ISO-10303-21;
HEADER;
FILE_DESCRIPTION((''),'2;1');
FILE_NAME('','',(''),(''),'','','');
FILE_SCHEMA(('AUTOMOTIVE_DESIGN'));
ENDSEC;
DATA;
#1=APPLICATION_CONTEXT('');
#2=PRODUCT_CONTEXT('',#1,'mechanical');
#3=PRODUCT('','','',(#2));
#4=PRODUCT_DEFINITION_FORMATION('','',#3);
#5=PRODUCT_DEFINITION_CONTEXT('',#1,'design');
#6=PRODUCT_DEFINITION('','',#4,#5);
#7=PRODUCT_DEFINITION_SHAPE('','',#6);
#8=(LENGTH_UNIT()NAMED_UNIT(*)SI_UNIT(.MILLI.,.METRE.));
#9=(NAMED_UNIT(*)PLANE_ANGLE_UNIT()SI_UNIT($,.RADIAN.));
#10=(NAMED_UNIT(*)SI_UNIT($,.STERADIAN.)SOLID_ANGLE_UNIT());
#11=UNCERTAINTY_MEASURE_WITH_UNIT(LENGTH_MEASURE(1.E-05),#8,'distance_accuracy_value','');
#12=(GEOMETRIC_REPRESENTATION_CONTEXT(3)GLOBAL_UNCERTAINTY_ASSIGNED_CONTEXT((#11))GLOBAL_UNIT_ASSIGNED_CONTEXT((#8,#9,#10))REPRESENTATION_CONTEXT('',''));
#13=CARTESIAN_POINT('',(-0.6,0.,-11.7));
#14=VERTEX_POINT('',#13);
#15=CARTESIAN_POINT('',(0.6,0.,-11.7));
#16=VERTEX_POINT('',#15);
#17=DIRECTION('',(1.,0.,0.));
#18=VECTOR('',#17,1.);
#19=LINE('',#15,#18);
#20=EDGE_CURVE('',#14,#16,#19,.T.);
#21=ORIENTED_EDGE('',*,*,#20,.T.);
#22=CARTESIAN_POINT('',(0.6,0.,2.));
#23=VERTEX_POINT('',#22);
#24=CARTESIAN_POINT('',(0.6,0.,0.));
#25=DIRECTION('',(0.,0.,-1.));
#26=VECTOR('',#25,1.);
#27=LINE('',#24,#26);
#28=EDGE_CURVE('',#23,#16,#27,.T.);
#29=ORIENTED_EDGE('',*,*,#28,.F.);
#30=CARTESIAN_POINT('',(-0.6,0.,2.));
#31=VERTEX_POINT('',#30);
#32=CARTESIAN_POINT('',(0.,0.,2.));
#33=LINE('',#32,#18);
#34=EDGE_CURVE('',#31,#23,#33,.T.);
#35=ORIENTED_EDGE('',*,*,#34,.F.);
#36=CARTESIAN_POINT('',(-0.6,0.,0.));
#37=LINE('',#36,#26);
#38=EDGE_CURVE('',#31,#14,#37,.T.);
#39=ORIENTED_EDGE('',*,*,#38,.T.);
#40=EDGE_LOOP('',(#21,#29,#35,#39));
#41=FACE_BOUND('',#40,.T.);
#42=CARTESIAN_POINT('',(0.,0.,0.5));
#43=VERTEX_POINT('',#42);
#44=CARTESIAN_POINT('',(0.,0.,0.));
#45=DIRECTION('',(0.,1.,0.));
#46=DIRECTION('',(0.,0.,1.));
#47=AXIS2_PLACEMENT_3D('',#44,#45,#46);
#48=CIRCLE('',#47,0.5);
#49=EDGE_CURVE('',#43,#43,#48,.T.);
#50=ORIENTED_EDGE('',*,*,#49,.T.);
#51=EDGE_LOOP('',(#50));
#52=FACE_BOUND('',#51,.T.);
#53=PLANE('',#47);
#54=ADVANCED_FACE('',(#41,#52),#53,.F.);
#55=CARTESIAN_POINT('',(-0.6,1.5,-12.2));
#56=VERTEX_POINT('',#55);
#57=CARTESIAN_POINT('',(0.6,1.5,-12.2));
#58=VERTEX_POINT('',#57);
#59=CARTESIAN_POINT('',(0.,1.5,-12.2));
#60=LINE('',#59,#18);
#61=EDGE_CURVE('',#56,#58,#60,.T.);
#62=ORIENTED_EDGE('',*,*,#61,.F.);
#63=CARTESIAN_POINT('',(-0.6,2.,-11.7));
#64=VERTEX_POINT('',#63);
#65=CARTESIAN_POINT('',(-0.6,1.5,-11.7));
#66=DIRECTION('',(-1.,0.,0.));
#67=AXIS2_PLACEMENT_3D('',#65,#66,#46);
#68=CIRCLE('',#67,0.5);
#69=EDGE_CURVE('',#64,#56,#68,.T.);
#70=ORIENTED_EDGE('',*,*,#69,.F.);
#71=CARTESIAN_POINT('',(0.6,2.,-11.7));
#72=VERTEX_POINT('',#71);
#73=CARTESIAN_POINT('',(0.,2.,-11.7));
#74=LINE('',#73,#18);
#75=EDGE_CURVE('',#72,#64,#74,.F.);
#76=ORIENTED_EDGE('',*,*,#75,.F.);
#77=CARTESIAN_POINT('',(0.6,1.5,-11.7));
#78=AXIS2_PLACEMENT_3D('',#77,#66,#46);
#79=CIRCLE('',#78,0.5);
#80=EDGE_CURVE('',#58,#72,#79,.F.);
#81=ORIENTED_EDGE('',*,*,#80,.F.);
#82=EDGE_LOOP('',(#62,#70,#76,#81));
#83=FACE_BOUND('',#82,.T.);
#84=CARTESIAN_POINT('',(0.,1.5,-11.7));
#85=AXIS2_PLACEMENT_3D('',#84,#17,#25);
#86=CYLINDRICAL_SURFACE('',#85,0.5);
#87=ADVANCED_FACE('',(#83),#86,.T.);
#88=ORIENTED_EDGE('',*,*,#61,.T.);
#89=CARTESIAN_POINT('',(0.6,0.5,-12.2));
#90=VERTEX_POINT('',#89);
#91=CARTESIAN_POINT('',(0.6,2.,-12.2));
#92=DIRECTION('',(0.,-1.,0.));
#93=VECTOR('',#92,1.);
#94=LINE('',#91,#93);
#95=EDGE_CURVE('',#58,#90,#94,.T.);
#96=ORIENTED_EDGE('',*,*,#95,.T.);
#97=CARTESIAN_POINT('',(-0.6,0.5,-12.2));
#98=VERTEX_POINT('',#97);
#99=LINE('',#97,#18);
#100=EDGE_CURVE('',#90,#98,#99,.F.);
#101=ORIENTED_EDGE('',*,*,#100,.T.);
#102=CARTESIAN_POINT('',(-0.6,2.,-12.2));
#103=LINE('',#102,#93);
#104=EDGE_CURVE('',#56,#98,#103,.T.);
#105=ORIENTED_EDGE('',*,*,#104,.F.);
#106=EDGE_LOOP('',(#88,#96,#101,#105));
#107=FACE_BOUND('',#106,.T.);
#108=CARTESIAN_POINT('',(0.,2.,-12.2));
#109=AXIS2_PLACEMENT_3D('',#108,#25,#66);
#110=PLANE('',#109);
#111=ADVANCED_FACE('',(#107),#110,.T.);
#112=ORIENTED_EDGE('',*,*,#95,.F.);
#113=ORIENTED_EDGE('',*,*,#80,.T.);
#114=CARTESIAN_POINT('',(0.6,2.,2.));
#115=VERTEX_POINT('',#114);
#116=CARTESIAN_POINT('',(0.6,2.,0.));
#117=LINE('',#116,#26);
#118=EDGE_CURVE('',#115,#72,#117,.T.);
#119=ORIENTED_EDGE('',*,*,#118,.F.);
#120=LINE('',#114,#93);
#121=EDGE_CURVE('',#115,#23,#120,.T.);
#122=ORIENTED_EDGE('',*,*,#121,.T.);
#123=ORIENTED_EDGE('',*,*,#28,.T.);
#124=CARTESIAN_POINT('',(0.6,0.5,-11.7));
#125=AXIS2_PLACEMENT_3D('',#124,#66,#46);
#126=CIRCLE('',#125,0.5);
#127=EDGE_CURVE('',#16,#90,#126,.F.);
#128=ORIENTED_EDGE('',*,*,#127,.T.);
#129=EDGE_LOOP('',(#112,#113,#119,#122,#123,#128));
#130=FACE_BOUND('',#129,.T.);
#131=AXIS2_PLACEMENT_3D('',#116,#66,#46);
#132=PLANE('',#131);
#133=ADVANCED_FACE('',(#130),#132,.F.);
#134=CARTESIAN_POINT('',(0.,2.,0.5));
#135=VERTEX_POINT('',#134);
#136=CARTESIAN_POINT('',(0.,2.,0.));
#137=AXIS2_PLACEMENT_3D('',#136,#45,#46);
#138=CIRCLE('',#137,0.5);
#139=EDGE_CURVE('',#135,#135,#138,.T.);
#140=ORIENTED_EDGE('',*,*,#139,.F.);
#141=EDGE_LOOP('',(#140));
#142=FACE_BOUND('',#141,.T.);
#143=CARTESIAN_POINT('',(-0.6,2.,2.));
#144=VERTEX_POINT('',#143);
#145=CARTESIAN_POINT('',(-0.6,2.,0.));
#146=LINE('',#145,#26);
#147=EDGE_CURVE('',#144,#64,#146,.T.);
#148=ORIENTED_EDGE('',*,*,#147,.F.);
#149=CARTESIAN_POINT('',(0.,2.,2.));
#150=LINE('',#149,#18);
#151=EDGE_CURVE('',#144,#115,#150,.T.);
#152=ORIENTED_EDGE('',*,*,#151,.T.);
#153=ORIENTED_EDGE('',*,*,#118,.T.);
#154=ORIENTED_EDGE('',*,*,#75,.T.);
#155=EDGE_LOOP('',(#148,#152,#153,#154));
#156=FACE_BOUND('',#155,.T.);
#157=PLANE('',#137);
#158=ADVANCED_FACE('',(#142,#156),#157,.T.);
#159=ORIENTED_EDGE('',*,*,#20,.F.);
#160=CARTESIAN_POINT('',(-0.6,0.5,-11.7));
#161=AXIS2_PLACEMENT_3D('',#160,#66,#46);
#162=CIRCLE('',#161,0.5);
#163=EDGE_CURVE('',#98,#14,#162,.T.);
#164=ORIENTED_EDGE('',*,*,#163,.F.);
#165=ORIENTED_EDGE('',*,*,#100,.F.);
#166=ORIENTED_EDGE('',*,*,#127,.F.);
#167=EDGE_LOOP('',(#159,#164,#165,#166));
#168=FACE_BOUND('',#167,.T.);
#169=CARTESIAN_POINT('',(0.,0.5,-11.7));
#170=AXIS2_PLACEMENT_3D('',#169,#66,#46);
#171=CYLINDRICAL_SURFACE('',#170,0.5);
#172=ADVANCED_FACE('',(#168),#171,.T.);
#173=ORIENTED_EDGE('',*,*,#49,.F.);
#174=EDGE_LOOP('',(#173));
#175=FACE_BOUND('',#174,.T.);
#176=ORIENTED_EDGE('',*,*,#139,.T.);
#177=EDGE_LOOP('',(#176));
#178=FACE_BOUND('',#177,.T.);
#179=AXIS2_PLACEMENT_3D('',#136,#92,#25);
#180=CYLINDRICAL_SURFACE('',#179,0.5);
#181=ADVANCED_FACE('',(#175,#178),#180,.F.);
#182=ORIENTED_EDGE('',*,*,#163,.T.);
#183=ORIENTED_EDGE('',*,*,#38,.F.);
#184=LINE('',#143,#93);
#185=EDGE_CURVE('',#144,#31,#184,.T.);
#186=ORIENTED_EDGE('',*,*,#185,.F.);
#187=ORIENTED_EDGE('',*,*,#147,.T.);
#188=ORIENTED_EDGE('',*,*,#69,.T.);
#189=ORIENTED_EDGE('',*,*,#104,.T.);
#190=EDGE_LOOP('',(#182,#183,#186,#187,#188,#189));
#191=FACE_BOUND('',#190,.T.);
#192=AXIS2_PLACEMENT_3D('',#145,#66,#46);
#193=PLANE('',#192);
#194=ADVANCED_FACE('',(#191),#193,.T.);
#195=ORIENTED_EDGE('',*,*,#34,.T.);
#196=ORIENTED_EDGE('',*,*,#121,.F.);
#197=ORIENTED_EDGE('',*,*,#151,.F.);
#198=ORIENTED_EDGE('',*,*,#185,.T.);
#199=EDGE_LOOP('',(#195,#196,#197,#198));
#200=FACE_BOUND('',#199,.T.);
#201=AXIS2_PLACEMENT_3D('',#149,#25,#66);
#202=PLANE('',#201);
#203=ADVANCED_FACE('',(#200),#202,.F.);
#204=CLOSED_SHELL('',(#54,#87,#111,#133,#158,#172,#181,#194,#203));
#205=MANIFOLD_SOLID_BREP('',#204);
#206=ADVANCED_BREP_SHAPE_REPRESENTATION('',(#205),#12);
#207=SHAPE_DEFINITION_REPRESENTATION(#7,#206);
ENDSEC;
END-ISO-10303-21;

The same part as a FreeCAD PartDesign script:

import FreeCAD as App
import Part
import Sketcher
Q = App.Units.Quantity


def edges_at(feature, points):
    """Names of the edges that pass closest to the given points."""
    edges = feature.Shape.Edges
    near = lambda p: min(range(len(edges)), key=lambda i: edges[i].distToShape(Part.Vertex(*p))[0])
    return sorted({f"Edge{near(p) + 1}" for p in points})


def add_polygon(sketch, points):
    """Adds a closed chain of lines whose ends are joined by coincident constraints."""
    first, n = sketch.GeometryCount, len(points)
    for a, b in zip(points, points[1:] + points[:1]):
        sketch.addGeometry(Part.LineSegment(App.Vector(*a, 0), App.Vector(*b, 0)), False)
    for i in range(n):
        sketch.addConstraint(Sketcher.Constraint("Coincident", first + i, 2, first + (i + 1) % n, 1))

doc = App.newDocument("Part")
body = doc.addObject("PartDesign::Body", "Body")

# Sketch on XZ plane
sketch1 = body.newObject("Sketcher::SketchObject", "Sketch")
sketch1.AttachmentSupport = (doc.getObject("XZ_Plane"), [""])
sketch1.MapMode = "FlatFace"
add_polygon(sketch1, [(-0.6, -12.2), (-0.6, 2), (0.6, 2), (0.6, -12.2)])  # lines 0-3
sketch1.addGeometry(Part.Circle(App.Vector(0, 0, 0), App.Vector(0, 0, 1), 0.5), False)  # 4
sketch1.addConstraint([
    Sketcher.Constraint("Vertical", 0),
    Sketcher.Constraint("Horizontal", 1),
    Sketcher.Constraint("Vertical", 2),
    Sketcher.Constraint("Horizontal", 3),
    Sketcher.Constraint("Coincident", 4, 3, -1, 1),
    Sketcher.Constraint("Diameter", 4, Q("1 mm")),
    Sketcher.Constraint("DistanceX", 1, 1, 1, 2, Q("1.2 mm")),
    Sketcher.Constraint("DistanceY", 0, 1, 0, 2, Q("14.2 mm")),
    Sketcher.Constraint("DistanceY", -1, 1, 0, 2, Q("2 mm")),
    Sketcher.Constraint("DistanceX", 0, 2, -1, 1, Q("0.6 mm")),
])
pad1 = body.newObject("PartDesign::Pad", "Pad")
pad1.Profile = sketch1
pad1.Length = 2
pad1.Reversed = True
doc.recompute()

fillet = body.newObject("PartDesign::Fillet", "Fillet")
fillet.Base = (pad1, edges_at(pad1, [(0, 2, -12.2), (0, 0, -12.2)]))
fillet.Radius = 0.5

doc.recompute()
